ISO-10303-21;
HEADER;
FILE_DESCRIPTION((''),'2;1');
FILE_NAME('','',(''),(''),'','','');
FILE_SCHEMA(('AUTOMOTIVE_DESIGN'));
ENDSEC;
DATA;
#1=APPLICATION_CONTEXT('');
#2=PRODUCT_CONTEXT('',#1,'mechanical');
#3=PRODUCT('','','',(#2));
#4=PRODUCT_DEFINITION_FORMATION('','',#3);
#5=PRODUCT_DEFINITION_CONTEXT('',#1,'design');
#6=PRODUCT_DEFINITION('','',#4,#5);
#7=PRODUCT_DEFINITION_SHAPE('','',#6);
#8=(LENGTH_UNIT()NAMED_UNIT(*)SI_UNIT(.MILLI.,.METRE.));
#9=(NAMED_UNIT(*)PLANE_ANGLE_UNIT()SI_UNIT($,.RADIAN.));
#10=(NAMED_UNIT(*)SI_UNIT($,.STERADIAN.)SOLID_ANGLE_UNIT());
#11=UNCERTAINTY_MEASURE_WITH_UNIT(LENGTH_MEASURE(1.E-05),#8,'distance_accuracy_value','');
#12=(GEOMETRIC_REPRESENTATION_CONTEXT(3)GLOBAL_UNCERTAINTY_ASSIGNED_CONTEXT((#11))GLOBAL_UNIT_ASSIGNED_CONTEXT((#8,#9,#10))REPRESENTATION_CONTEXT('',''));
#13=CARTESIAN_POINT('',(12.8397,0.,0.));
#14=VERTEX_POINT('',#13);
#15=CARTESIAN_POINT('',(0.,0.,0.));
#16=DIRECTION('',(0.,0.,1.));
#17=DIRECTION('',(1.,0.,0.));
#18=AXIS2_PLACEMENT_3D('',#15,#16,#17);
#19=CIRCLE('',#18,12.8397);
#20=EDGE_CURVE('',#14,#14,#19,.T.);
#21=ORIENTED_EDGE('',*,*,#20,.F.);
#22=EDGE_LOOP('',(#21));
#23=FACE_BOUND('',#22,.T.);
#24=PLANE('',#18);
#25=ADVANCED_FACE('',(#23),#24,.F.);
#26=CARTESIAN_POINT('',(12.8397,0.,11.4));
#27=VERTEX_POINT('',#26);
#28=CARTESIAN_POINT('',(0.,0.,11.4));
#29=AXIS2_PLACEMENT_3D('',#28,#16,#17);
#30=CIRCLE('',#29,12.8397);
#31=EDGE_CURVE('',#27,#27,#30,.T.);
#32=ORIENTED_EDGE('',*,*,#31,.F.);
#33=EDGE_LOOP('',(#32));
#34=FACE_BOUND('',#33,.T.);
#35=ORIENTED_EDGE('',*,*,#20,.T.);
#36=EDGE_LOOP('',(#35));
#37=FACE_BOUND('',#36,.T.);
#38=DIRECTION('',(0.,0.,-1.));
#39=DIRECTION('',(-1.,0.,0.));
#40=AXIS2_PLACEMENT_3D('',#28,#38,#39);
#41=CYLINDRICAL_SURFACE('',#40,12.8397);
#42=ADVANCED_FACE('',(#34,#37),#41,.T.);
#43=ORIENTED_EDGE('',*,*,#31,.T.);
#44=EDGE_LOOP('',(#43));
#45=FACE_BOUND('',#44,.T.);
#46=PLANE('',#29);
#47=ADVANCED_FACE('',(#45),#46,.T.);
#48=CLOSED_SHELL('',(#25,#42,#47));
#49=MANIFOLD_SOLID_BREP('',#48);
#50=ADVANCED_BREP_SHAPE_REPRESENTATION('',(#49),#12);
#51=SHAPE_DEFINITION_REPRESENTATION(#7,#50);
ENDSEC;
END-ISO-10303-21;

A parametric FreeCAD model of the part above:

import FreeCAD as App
import Part
import Sketcher

V = App.Vector
Q = App.Units.Quantity

doc = App.newDocument("Part")
body = doc.addObject("PartDesign::Body", "Body")

# Sketch on XY plane
sketch1 = body.newObject("Sketcher::SketchObject", "Sketch")
sketch1.AttachmentSupport = (doc.getObject("XY_Plane"), [""])
sketch1.MapMode = "FlatFace"
sketch1.addGeometry(Part.Circle(V(0, 0, 0), V(0, 0, 1), 13), False)
sketch1.addConstraint([
    Sketcher.Constraint("Coincident", 0, 3, -1, 1),
    Sketcher.Constraint("Diameter", 0, Q("25.6794 mm")),
])
pad1 = body.newObject("PartDesign::Pad", "Pad")
pad1.Profile = sketch1
pad1.Length = 11.4

doc.recompute()
